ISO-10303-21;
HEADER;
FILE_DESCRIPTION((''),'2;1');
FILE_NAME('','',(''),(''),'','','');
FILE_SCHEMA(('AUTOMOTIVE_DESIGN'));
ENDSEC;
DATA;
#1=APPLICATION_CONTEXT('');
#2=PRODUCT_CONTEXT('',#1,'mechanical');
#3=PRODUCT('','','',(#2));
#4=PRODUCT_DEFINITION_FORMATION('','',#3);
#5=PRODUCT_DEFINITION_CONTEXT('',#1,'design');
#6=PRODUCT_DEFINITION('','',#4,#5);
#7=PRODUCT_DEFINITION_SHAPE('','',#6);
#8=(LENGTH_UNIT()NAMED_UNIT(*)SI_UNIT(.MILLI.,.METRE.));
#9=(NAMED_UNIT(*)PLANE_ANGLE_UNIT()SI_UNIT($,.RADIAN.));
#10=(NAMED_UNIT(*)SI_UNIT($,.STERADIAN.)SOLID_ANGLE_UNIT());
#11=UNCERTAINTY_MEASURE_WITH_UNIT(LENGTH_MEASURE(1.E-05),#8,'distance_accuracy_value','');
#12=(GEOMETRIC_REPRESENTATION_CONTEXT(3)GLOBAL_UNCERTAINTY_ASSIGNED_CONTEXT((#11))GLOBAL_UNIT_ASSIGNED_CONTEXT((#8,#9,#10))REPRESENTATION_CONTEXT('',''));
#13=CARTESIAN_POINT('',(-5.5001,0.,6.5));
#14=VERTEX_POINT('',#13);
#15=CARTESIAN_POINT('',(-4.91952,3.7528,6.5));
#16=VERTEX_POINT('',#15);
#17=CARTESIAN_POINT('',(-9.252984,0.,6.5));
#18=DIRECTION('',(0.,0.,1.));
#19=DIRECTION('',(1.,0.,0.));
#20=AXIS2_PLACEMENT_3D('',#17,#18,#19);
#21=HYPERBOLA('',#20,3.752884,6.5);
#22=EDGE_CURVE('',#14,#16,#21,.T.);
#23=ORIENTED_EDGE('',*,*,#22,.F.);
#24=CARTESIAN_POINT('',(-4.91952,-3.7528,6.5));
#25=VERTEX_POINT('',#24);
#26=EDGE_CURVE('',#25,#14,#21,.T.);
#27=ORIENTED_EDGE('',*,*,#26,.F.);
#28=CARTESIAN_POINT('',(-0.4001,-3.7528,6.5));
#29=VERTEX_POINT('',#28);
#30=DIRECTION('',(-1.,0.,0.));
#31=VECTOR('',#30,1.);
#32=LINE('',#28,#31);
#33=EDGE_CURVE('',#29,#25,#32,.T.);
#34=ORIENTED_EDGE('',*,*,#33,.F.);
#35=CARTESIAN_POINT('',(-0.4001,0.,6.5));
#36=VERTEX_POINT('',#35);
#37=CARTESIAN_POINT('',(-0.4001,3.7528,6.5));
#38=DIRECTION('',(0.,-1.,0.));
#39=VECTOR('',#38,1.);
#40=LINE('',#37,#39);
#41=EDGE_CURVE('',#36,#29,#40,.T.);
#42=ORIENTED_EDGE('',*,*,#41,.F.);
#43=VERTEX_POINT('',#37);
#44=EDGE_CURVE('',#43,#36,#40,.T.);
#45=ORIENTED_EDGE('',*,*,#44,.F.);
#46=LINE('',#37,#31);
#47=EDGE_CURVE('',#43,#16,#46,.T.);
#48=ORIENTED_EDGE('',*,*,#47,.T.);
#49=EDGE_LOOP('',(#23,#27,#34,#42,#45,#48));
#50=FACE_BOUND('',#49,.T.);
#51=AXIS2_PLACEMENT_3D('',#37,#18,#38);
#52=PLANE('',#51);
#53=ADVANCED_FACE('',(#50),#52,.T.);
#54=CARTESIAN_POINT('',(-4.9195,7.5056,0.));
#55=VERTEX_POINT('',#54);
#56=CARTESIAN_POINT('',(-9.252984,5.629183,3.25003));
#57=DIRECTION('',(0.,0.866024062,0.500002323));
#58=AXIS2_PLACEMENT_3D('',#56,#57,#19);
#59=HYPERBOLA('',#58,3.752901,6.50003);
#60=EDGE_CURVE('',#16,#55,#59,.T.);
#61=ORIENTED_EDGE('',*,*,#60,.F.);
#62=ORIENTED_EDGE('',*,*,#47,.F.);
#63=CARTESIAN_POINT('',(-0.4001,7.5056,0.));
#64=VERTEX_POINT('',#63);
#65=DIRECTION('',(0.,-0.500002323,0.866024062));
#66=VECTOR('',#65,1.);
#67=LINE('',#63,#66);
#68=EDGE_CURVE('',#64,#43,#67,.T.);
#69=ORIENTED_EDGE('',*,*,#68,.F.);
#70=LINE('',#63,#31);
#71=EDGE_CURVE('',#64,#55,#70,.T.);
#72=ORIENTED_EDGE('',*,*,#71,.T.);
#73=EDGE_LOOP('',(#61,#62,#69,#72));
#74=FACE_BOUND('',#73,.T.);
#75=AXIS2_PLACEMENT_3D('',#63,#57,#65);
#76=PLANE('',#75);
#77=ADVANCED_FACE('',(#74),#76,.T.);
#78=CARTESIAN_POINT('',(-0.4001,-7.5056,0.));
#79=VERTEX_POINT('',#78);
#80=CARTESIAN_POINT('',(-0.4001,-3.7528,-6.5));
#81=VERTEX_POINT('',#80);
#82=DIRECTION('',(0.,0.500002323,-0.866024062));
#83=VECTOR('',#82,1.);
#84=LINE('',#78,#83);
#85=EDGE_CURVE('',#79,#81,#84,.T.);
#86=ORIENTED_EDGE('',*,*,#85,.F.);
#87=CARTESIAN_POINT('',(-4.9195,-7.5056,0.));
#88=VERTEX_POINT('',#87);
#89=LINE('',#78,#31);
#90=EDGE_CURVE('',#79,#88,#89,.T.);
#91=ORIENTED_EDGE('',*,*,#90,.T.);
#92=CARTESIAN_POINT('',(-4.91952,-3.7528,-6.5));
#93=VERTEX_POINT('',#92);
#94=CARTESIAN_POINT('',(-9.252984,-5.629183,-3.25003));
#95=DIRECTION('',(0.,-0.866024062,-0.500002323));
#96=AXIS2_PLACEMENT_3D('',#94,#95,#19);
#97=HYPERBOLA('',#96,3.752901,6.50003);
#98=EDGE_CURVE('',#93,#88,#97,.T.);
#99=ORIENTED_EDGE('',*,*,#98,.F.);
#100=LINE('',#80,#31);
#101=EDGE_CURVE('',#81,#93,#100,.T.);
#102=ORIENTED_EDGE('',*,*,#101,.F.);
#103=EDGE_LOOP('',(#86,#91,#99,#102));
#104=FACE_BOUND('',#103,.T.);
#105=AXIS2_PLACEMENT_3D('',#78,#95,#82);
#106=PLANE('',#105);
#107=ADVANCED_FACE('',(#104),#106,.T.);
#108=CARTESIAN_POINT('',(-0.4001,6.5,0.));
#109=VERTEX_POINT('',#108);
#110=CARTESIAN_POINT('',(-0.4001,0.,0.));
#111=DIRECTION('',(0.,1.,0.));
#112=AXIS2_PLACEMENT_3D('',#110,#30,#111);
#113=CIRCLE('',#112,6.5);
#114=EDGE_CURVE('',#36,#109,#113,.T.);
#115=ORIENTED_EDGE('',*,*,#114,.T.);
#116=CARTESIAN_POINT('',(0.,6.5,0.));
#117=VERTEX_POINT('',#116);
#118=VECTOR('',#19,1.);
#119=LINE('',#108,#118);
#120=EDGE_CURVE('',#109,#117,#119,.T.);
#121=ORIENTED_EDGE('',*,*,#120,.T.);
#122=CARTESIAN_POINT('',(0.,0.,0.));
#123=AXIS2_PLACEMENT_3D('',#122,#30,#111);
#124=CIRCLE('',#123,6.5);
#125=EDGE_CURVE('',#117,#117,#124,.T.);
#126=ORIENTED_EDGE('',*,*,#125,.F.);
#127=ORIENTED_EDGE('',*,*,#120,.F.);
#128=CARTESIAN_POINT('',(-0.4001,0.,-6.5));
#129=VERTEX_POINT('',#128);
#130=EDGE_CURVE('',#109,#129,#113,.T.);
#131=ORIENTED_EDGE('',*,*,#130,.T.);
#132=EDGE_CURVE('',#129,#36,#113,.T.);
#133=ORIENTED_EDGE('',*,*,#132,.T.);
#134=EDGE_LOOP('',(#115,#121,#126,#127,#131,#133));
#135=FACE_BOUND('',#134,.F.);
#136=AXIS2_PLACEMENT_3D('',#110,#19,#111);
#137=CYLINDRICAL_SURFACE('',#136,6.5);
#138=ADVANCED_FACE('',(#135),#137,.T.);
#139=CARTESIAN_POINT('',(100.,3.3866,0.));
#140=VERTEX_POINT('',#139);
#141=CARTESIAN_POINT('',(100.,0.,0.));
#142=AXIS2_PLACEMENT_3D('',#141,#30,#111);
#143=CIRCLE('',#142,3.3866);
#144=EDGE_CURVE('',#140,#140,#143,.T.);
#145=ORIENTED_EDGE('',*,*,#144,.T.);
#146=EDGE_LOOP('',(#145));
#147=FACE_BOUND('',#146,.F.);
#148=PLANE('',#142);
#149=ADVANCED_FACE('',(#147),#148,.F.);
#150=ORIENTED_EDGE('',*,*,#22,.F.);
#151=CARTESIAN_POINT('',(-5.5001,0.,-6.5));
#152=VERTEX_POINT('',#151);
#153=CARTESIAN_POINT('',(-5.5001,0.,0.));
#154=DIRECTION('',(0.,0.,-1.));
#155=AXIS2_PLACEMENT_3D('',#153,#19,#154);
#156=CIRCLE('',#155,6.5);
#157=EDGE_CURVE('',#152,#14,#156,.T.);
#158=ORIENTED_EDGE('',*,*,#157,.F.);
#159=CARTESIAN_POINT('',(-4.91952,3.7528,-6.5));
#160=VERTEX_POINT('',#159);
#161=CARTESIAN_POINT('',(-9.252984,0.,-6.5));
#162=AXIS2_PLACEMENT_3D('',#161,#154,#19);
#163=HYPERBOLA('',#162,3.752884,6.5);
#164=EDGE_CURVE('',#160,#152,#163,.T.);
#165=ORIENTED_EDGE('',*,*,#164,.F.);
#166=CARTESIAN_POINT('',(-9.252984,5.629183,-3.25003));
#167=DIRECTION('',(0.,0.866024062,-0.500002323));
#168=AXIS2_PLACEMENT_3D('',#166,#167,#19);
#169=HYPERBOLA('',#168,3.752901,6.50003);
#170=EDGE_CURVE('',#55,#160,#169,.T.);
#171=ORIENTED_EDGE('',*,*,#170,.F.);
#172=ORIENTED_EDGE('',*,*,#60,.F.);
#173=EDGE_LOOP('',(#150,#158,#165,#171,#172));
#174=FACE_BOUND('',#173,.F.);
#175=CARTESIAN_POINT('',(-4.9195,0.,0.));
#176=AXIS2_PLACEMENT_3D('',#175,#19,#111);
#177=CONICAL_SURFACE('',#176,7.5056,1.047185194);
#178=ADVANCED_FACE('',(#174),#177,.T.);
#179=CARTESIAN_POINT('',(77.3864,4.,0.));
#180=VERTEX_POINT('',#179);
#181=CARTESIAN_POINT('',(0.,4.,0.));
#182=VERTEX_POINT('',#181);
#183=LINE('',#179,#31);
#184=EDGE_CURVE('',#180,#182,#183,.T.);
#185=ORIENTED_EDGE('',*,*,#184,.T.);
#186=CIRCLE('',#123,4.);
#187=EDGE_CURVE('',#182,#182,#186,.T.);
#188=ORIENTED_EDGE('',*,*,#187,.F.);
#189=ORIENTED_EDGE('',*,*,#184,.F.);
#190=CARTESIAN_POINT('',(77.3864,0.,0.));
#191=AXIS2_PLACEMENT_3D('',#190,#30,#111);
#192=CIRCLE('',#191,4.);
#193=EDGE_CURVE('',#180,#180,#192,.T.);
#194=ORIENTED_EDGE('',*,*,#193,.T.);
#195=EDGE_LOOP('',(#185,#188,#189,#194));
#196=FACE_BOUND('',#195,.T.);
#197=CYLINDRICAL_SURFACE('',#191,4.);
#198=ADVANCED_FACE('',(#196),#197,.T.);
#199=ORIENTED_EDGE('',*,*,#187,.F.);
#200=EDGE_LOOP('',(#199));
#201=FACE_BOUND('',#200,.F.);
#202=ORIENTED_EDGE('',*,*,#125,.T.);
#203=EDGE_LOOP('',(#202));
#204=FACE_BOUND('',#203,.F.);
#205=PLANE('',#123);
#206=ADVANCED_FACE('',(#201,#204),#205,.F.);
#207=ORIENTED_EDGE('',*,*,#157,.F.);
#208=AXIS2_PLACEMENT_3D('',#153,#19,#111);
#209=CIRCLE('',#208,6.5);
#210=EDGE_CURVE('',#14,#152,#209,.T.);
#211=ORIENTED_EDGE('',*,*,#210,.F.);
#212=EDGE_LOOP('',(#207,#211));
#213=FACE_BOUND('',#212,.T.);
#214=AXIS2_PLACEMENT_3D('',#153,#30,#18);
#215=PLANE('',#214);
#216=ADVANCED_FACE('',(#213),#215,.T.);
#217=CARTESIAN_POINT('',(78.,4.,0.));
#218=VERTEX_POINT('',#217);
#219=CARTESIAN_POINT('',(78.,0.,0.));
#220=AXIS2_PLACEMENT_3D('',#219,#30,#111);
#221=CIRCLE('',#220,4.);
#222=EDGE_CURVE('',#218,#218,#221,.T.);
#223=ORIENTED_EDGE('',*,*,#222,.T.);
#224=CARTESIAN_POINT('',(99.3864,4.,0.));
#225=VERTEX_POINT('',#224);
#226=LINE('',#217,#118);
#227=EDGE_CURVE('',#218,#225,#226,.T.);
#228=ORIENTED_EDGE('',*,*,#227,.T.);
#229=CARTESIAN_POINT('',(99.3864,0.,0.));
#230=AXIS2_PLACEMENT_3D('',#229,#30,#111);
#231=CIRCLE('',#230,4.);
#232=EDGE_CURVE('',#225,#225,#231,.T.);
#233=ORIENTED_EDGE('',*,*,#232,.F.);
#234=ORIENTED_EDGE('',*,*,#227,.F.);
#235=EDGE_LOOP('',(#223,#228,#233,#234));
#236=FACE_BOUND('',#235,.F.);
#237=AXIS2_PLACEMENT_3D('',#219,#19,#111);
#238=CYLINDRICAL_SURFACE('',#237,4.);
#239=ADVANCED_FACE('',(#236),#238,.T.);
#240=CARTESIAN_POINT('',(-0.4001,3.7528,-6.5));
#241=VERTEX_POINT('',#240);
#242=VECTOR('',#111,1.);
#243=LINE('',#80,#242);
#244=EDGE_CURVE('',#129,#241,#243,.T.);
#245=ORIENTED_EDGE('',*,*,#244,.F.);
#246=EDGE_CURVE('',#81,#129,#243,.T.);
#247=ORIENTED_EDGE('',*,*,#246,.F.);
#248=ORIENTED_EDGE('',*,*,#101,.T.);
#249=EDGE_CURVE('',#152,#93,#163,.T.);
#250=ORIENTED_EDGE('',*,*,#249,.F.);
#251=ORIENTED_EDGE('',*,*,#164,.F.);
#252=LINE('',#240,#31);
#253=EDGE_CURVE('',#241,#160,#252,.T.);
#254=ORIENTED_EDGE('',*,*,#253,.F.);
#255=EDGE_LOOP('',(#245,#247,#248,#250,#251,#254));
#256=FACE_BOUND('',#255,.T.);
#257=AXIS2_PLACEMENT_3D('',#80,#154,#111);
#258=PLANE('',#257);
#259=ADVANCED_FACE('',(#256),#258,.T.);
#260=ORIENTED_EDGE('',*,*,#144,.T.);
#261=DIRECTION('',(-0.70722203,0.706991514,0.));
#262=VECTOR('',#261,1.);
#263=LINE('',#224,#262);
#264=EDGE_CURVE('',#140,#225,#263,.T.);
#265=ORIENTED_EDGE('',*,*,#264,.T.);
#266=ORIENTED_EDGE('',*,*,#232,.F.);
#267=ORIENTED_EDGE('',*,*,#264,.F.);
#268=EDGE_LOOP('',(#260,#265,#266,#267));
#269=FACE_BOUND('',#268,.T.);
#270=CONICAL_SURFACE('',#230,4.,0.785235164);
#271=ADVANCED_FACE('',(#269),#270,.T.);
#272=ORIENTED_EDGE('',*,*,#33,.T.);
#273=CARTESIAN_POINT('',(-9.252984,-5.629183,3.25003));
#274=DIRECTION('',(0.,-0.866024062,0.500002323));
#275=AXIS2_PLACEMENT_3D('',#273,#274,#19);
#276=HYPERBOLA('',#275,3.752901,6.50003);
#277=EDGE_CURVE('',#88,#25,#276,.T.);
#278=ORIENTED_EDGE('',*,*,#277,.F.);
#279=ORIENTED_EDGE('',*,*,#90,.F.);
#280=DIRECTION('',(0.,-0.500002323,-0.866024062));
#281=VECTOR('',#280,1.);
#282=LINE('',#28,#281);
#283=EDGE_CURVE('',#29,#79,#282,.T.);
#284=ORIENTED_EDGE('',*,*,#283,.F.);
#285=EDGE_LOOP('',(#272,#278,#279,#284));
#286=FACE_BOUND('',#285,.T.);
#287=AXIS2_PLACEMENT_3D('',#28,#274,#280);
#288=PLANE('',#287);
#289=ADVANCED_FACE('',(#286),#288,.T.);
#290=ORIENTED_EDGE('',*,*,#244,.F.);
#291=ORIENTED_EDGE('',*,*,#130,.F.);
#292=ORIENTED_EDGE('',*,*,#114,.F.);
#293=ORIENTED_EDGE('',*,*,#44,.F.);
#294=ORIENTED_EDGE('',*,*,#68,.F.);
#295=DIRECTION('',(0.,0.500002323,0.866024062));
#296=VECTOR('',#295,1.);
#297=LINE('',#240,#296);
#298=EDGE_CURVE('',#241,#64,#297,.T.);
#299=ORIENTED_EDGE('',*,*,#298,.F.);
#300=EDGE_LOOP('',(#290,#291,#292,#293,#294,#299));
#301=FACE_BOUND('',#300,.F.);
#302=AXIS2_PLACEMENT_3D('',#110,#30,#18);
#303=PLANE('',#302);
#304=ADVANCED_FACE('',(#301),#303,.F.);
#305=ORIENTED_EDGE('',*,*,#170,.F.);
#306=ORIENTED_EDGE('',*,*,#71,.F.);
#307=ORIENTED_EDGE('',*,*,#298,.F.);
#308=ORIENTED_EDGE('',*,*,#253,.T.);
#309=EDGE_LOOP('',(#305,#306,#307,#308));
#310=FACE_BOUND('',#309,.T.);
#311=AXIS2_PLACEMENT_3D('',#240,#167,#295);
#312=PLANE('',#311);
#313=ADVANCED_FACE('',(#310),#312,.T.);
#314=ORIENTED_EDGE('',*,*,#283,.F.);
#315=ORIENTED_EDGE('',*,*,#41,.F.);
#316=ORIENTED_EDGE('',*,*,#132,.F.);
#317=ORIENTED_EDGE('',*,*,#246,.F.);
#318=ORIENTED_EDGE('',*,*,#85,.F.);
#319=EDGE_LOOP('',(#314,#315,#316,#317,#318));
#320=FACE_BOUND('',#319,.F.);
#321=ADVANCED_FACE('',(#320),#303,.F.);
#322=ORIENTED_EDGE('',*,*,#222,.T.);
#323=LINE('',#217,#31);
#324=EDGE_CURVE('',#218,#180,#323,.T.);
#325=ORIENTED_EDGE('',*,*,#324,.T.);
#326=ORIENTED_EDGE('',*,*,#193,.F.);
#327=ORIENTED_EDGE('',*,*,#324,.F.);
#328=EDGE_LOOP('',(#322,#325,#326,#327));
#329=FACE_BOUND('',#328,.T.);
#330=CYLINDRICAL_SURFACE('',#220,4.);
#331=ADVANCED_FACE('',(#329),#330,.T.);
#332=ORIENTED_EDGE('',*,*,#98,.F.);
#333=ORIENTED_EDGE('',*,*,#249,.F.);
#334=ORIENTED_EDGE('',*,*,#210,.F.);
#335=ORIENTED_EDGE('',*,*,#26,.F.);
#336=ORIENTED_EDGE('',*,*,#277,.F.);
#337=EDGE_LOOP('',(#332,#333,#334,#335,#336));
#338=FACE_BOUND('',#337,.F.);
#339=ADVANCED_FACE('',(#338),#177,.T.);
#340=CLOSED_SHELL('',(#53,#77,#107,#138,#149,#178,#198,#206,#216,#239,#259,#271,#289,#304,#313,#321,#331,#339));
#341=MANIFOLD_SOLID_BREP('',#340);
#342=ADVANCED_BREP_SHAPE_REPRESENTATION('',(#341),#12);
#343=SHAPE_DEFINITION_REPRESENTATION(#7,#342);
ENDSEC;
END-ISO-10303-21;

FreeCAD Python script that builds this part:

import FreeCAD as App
import Part
import Sketcher
from FreeCAD import Vector
Q = App.Units.Quantity


def edges_at(feature, points):
    """Names of the edges that pass closest to the given points."""
    edges = feature.Shape.Edges
    near = lambda p: min(range(len(edges)), key=lambda i: edges[i].distToShape(Part.Vertex(*p))[0])
    return sorted({f"Edge{near(p) + 1}" for p in points})

doc = App.newDocument("Part")
body = doc.addObject("PartDesign::Body", "Body")

# Sketch on XY plane
sketch1 = doc.addObject("Sketcher::SketchObject", "Sketch")
body.addObject(sketch1)
sketch1.AttachmentSupport = (doc.XY_Plane, [""])
sketch1.MapMode = "FlatFace"
sketch1.addGeometry(Part.LineSegment(Vector(0, 4, 0), Vector(0, 6.5, 0)), False)
sketch1.addGeometry(Part.LineSegment(Vector(0, 6.5, 0), Vector(-0.4, 6.5, 0)), False)
sketch1.addGeometry(Part.LineSegment(Vector(-0.4, 6.5, 0), Vector(-0.4, 0, 0)), False)
sketch1.addGeometry(Part.LineSegment(Vector(-0.4, 0, 0), Vector(100, 0, 0)), False)
sketch1.addGeometry(Part.LineSegment(Vector(100, 0, 0), Vector(100, 4, 0)), False)
sketch1.addGeometry(Part.LineSegment(Vector(100, 4, 0), Vector(0, 4, 0)), False)
sketch1.addConstraint(Sketcher.Constraint("Coincident", 0, 2, 1, 1))
sketch1.addConstraint(Sketcher.Constraint("Coincident", 1, 2, 2, 1))
sketch1.addConstraint(Sketcher.Constraint("Coincident", 2, 2, 3, 1))
sketch1.addConstraint(Sketcher.Constraint("Coincident", 3, 2, 4, 1))
sketch1.addConstraint(Sketcher.Constraint("Coincident", 4, 2, 5, 1))
sketch1.addConstraint(Sketcher.Constraint("Coincident", 5, 2, 0, 1))
sketch1.addConstraint(Sketcher.Constraint("Vertical", 0))
sketch1.addConstraint(Sketcher.Constraint("Horizontal", 1))
sketch1.addConstraint(Sketcher.Constraint("Vertical", 2))
sketch1.addConstraint(Sketcher.Constraint("Horizontal", 3))
sketch1.addConstraint(Sketcher.Constraint("Vertical", 4))
sketch1.addConstraint(Sketcher.Constraint("Horizontal", 5))
sketch1.addConstraint(Sketcher.Constraint("PointOnObject", 0, 2, -2))
sketch1.addConstraint(Sketcher.Constraint("PointOnObject", 2, 2, -1))
sketch1.addConstraint(Sketcher.Constraint("DistanceX", 5, 2, 5, 1, 100.0))
sketch1.addConstraint(Sketcher.Constraint("DistanceX", 1, 2, 1, 1, 0.4))
sketch1.addConstraint(Sketcher.Constraint("DistanceY", 4, 1, 4, 2, 4.0))
sketch1.addConstraint(Sketcher.Constraint("DistanceY", 0, 1, 0, 2, 2.5))
revolution = doc.addObject("PartDesign::Revolution", "Revolution")
body.addObject(revolution)
revolution.Profile = sketch1
revolution.ReferenceAxis = (sketch1, ["H_Axis"])
revolution.Angle = 360

# Sketch on YZ plane
sketch2 = doc.addObject("Sketcher::SketchObject", "Sketch001")
body.addObject(sketch2)
sketch2.AttachmentSupport = (doc.YZ_Plane, [""])
sketch2.MapMode = "FlatFace"
sketch2.AttachmentOffset = App.Placement(Vector(0, 0, -0.4001), App.Rotation())
sketch2.addGeometry(Part.LineSegment(Vector(4, 6, 0), Vector(8, 0, 0)), False)
sketch2.addGeometry(Part.LineSegment(Vector(8, 0, 0), Vector(4, -6, 0)), False)
sketch2.addGeometry(Part.LineSegment(Vector(4, -6, 0), Vector(-4, -6, 0)), False)
sketch2.addGeometry(Part.LineSegment(Vector(-4, -6, 0), Vector(-8, 0, 0)), False)
sketch2.addGeometry(Part.LineSegment(Vector(-8, 0, 0), Vector(-4, 6, 0)), False)
sketch2.addGeometry(Part.LineSegment(Vector(-4, 6, 0), Vector(4, 6, 0)), False)
sketch2.addConstraint(Sketcher.Constraint("Coincident", 0, 2, 1, 1))
sketch2.addConstraint(Sketcher.Constraint("Coincident", 1, 2, 2, 1))
sketch2.addConstraint(Sketcher.Constraint("Coincident", 2, 2, 3, 1))
sketch2.addConstraint(Sketcher.Constraint("Coincident", 3, 2, 4, 1))
sketch2.addConstraint(Sketcher.Constraint("Coincident", 4, 2, 5, 1))
sketch2.addConstraint(Sketcher.Constraint("Coincident", 5, 2, 0, 1))
sketch2.addConstraint(Sketcher.Constraint("Horizontal", 2))
sketch2.addConstraint(Sketcher.Constraint("Horizontal", 5))
sketch2.addConstraint(Sketcher.Constraint("Symmetric", 0, 2, 3, 2, -1, 1))
sketch2.addConstraint(Sketcher.Constraint("Symmetric", 1, 2, 4, 2, -1, 1))
sketch2.addConstraint(Sketcher.Constraint("PointOnObject", 0, 2, -1))
sketch2.addConstraint(Sketcher.Constraint("Parallel", 0, 3))
sketch2.addConstraint(Sketcher.Constraint("Vertical", 2, 2, 4, 2))
sketch2.addConstraint(Sketcher.Constraint("DistanceY", 2, 2, 4, 2, 13.0))
sketch2.addConstraint(Sketcher.Constraint("Angle", 0, Q("-59.9998 deg")))
sketch2.addConstraint(Sketcher.Constraint("DistanceX", 2, 2, 2, 1, 7.5056))
pad1 = doc.addObject("PartDesign::Pad", "Pad")
body.addObject(pad1)
pad1.Profile = sketch2
pad1.Length = 5.1
pad1.Reversed = True

# Sketch on XY plane
sketch3 = doc.addObject("Sketcher::SketchObject", "Sketch002")
body.addObject(sketch3)
sketch3.AttachmentSupport = (doc.XY_Plane, [""])
sketch3.MapMode = "FlatFace"
sketch3.addGeometry(Part.LineSegment(Vector(-5.5, 7.5, 0), Vector(-5.5, 6.5, 0)), False)
sketch3.addGeometry(Part.LineSegment(Vector(-5.5, 6.5, 0), Vector(-4.9, 7.5, 0)), False)
sketch3.addGeometry(Part.LineSegment(Vector(-4.9, 7.5, 0), Vector(-5.5, 7.5, 0)), False)
sketch3.addConstraint(Sketcher.Constraint("Coincident", 0, 2, 1, 1))
sketch3.addConstraint(Sketcher.Constraint("Coincident", 1, 2, 2, 1))
sketch3.addConstraint(Sketcher.Constraint("Coincident", 2, 2, 0, 1))
sketch3.addConstraint(Sketcher.Constraint("Vertical", 0))
sketch3.addConstraint(Sketcher.Constraint("Horizontal", 2))
sketch3.addConstraint(Sketcher.Constraint("Angle", 1, Q("59.9993 deg")))
sketch3.addConstraint(Sketcher.Constraint("DistanceX", 0, 2, -1, 1, 5.5))
sketch3.addConstraint(Sketcher.Constraint("DistanceY", -1, 1, 0, 2, 6.5))
sketch3.addConstraint(Sketcher.Constraint("DistanceX", 2, 2, 2, 1, 0.5806))
groove = doc.addObject("PartDesign::Groove", "Groove")
body.addObject(groove)
groove.Profile = sketch3
groove.ReferenceAxis = (sketch3, ["H_Axis"])
groove.Angle = 360
doc.recompute()

chamfer = doc.addObject("PartDesign::Chamfer", "Chamfer")
body.addObject(chamfer)
chamfer.Base = (groove, edges_at(groove, [(100, -4, 0)]))
chamfer.ChamferType = "Two distances"
chamfer.Size = 0.6134
chamfer.Size2 = 0.6136

doc.recompute()
